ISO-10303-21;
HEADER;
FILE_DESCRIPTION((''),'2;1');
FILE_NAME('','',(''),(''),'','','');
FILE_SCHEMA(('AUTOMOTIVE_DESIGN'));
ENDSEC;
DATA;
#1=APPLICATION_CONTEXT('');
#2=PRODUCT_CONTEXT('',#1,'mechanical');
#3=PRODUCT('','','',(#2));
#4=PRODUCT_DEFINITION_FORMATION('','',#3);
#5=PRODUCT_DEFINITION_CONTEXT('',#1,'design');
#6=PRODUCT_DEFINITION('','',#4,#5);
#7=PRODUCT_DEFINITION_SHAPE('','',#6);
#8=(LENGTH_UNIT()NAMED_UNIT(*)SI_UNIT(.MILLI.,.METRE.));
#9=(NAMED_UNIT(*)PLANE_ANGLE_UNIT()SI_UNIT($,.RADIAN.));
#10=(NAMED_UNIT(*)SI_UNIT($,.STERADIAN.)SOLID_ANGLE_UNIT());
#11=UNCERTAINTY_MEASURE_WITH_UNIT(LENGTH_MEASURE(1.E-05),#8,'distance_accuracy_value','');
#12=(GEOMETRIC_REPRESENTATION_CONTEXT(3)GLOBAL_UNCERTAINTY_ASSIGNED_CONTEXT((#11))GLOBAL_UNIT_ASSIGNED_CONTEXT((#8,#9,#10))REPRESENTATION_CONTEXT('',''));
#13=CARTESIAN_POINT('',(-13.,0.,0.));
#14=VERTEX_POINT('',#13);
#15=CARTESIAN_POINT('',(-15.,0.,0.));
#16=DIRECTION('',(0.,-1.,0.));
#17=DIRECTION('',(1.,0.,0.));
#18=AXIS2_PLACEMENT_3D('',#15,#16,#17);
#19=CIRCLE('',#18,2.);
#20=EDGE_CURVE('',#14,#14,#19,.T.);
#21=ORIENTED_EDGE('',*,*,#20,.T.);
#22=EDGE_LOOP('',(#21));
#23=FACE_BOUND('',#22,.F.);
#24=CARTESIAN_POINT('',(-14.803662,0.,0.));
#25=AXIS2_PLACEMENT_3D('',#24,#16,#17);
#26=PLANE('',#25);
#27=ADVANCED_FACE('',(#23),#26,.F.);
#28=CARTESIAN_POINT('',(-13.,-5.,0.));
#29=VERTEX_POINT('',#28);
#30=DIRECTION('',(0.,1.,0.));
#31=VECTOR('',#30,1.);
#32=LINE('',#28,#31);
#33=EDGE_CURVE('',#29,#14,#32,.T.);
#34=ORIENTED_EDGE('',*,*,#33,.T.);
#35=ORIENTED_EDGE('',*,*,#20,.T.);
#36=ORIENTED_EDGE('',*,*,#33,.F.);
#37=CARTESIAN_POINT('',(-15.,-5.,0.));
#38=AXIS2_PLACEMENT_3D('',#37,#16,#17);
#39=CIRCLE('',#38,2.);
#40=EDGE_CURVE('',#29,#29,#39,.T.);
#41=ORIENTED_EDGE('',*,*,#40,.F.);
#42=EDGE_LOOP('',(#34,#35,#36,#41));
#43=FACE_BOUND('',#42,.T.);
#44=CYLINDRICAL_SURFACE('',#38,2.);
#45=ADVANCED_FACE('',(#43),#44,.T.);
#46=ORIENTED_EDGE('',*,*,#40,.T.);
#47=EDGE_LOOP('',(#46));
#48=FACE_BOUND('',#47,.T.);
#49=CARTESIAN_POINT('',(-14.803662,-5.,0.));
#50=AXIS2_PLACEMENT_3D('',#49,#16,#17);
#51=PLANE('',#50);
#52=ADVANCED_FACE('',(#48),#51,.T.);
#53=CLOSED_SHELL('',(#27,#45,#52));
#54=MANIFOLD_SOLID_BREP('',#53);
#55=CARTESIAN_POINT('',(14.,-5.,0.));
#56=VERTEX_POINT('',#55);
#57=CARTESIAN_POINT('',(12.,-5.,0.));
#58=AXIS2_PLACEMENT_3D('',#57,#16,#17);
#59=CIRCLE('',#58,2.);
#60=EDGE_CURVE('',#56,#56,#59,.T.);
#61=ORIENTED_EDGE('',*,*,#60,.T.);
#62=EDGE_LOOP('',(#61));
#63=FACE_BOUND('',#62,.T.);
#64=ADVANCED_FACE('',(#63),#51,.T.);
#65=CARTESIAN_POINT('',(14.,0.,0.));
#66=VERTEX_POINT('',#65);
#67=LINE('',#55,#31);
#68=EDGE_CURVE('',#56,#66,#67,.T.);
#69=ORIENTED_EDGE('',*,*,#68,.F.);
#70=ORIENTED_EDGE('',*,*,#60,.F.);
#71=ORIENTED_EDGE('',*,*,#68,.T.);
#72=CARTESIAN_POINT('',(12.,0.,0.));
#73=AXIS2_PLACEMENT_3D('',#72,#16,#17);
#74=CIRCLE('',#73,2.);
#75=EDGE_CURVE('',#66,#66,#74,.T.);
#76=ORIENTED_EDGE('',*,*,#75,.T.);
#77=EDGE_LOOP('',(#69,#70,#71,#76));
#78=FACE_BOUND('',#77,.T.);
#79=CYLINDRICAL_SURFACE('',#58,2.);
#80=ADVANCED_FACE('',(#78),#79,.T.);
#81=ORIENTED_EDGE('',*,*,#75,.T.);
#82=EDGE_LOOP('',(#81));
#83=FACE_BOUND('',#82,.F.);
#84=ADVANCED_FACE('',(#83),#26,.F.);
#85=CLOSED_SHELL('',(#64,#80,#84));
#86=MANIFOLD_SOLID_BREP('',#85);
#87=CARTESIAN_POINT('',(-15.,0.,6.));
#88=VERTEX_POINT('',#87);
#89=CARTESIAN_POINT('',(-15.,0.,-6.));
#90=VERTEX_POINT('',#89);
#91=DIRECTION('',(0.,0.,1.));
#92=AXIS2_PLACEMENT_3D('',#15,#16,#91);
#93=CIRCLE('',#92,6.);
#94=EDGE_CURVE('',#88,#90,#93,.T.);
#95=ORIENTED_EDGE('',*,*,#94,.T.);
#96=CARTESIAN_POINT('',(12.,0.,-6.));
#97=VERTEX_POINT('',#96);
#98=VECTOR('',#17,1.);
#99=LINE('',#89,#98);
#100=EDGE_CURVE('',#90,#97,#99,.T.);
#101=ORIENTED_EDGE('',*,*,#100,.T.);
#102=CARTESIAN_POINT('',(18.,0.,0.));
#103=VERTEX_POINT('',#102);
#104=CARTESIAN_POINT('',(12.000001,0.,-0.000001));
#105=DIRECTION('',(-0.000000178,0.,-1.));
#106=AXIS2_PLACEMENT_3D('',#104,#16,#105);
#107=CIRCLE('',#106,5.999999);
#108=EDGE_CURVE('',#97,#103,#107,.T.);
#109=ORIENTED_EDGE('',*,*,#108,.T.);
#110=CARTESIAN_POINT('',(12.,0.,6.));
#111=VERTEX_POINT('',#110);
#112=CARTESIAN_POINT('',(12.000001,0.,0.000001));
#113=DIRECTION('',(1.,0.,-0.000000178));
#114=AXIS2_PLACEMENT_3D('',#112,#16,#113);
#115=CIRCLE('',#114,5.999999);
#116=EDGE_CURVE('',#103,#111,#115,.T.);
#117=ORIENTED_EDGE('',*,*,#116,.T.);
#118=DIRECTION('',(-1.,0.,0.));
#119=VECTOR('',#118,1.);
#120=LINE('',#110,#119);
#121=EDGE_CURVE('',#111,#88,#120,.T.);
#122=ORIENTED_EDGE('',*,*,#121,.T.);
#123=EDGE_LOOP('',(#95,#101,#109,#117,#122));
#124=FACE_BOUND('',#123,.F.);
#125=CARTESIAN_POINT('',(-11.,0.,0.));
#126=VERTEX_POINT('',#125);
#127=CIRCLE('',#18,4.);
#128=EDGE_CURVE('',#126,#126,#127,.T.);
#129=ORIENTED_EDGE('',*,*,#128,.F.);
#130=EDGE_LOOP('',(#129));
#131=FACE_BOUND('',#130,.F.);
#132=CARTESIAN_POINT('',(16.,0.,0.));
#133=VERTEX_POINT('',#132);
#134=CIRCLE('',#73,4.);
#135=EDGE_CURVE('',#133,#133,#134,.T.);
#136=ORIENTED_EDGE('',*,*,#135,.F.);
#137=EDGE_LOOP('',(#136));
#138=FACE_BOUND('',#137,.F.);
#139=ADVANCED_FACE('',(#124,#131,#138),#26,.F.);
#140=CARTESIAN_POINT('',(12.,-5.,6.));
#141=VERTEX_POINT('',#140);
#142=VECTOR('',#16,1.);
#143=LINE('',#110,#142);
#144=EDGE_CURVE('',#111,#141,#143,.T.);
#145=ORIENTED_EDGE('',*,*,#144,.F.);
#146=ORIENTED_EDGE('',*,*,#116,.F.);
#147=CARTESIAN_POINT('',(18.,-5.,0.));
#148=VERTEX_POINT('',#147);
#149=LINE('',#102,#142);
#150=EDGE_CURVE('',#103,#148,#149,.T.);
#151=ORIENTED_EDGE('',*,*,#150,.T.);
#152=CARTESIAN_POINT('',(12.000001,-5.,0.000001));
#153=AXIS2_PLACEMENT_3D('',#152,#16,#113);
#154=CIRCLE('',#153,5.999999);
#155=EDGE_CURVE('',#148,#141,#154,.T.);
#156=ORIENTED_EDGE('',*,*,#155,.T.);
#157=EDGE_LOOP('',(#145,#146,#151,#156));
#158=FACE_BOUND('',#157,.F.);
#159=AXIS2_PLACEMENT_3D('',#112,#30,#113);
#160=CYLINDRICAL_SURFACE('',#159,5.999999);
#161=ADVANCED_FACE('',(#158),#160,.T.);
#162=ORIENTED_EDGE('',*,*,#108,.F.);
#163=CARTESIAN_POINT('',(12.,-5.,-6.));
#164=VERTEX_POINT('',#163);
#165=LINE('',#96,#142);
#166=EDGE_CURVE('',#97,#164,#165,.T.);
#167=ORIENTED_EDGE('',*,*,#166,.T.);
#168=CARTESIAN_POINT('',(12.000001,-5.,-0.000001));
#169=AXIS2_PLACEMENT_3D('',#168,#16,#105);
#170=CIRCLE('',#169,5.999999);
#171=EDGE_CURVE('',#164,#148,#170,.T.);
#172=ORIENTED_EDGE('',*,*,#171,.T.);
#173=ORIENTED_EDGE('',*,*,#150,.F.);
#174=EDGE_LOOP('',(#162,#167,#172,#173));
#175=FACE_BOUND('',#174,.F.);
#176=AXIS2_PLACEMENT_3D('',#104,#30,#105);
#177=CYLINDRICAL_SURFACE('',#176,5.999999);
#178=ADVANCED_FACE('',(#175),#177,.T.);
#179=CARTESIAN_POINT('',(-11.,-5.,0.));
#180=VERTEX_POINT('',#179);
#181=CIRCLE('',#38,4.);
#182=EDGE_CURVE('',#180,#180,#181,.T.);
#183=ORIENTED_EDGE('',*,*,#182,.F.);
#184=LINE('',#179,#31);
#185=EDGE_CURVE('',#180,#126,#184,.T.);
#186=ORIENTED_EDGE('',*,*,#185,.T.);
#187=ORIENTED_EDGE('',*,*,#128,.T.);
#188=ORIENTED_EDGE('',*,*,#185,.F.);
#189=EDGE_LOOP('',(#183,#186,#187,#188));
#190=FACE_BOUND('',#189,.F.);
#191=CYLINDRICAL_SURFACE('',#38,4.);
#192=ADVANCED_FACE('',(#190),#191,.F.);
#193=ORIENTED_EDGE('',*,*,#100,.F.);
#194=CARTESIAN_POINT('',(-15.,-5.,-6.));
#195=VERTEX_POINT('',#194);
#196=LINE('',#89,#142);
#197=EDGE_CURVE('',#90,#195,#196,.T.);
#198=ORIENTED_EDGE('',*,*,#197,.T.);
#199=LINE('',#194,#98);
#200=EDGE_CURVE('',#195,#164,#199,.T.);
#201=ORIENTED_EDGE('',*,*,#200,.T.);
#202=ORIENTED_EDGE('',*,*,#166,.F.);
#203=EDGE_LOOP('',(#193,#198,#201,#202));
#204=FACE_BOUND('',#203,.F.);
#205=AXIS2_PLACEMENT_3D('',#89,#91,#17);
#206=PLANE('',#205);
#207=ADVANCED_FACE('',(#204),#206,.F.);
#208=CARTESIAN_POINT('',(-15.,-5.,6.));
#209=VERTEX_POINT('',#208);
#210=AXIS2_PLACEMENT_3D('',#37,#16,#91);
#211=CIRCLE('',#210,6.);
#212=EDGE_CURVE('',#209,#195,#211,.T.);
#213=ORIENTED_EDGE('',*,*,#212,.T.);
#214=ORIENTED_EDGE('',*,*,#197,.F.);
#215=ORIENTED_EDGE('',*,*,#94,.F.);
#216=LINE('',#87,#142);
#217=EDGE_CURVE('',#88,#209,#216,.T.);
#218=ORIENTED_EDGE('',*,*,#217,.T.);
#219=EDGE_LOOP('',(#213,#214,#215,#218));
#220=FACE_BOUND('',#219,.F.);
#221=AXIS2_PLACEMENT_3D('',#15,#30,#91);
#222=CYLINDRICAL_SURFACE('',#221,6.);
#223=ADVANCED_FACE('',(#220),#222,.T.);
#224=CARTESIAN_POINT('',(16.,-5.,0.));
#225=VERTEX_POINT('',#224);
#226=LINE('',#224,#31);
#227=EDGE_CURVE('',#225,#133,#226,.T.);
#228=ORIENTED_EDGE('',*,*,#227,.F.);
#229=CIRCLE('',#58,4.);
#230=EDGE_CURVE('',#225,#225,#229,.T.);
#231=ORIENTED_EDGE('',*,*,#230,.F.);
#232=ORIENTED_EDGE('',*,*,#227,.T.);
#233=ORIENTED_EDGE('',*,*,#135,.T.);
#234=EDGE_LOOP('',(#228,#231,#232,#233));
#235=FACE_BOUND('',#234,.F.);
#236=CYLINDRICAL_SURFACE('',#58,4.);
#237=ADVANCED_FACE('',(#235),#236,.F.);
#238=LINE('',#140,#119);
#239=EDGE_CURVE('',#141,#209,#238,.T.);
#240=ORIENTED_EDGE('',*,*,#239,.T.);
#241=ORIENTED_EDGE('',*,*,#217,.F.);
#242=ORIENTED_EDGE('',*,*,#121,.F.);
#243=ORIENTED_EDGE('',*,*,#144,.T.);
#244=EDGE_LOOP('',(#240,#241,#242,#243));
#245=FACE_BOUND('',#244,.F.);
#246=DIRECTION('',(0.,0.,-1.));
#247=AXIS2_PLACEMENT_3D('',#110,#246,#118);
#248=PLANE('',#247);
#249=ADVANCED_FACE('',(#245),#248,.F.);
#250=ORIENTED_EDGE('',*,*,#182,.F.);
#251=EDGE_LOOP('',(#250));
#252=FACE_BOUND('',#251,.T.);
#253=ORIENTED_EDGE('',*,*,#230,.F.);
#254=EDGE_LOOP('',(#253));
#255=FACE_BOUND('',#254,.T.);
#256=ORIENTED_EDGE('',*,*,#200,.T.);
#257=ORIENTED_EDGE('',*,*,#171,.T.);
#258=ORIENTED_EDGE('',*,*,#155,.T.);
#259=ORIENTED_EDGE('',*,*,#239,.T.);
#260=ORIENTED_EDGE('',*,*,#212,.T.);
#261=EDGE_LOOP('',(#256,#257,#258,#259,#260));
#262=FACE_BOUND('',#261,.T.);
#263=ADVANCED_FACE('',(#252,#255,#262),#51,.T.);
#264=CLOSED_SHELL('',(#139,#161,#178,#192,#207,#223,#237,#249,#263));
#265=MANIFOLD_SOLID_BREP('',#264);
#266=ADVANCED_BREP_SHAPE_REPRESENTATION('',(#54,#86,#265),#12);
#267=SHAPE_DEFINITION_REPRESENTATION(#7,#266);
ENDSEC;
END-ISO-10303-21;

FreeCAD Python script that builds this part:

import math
import FreeCAD as App
import Part
import Sketcher

V = App.Vector

doc = App.newDocument("Part")
body = doc.addObject("PartDesign::Body", "Body")
body.AllowCompound = True

# Sketch on XZ plane
sketch1 = body.newObject("Sketcher::SketchObject", "Sketch")
sketch1.AttachmentSupport = (doc.getObject("XZ_Plane"), [""])
sketch1.MapMode = "FlatFace"
sketch1.addGeometry([
    Part.ArcOfCircle(Part.Circle(V(-15, 0, 0), V(0, 0, 1), 6), math.radians(90), math.radians(270)),  # 0
    Part.LineSegment(V(-15, -6, 0), V(12, -6, 0)),  # 1
    Part.ArcOfCircle(Part.Circle(V(12, 0, 0), V(0, 0, 1), 6), math.radians(-90), math.radians(0)),  # 2
    Part.ArcOfCircle(Part.Circle(V(12, 0, 0), V(0, 0, 1), 6), math.radians(0), math.radians(90)),  # 3
    Part.LineSegment(V(12, 6, 0), V(-15, 6, 0)),  # 4
], False)
sketch1.addConstraint([
    Sketcher.Constraint("Tangent", 0, 2, 1, 1),
    Sketcher.Constraint("Tangent", 1, 2, 2, 1),
    Sketcher.Constraint("Tangent", 2, 2, 3, 1),
    Sketcher.Constraint("Tangent", 3, 2, 4, 1),
    Sketcher.Constraint("Tangent", 4, 2, 0, 1),
    Sketcher.Constraint("Horizontal", 1),
    Sketcher.Constraint("Horizontal", 4),
    Sketcher.Constraint("Equal", 0, 2),
    Sketcher.Constraint("PointOnObject", 0, 3, -1),
    Sketcher.Constraint("PointOnObject", 2, 2, -1),
    Sketcher.Constraint("Radius", 0, 6.0),
    Sketcher.Constraint("DistanceX", 1, 1, 1, 2, 27.0),
    Sketcher.Constraint("DistanceX", 0, 3, -1, 1, 15.0),
])
pad1 = body.newObject("PartDesign::Pad", "Pad")
pad1.Profile = sketch1
pad1.Length = 5

# Sketch on XZ plane
sketch2 = body.newObject("Sketcher::SketchObject", "Sketch001")
sketch2.AttachmentSupport = (doc.getObject("XZ_Plane"), [""])
sketch2.MapMode = "FlatFace"
sketch2.AttachmentOffset = App.Placement(V(0, 0, 5), App.Rotation())
sketch2.addGeometry([
    Part.Circle(V(-15, 0, 0), V(0, 0, 1), 4),
    Part.Circle(V(-15, 0, 0), V(0, 0, 1), 2),
    Part.Circle(V(12, 0, 0), V(0, 0, 1), 4),
    Part.Circle(V(12, 0, 0), V(0, 0, 1), 2),
], False)
sketch2.addConstraint([
    Sketcher.Constraint("Coincident", 1, 3, 0, 3),
    Sketcher.Constraint("Coincident", 3, 3, 2, 3),
    Sketcher.Constraint("Equal", 0, 2),
    Sketcher.Constraint("Equal", 1, 3),
    Sketcher.Constraint("PointOnObject", 0, 3, -1),
    Sketcher.Constraint("PointOnObject", 2, 3, -1),
    Sketcher.Constraint("Diameter", 0, 8.0),
    Sketcher.Constraint("Diameter", 1, 4.0),
    Sketcher.Constraint("DistanceX", 0, 3, -1, 1, 15.0),
    Sketcher.Constraint("DistanceX", -1, 1, 2, 3, 12.0),
])
pocket1 = body.newObject("PartDesign::Pocket", "Pocket")
pocket1.Profile = sketch2
pocket1.Length = 25

doc.recompute()
